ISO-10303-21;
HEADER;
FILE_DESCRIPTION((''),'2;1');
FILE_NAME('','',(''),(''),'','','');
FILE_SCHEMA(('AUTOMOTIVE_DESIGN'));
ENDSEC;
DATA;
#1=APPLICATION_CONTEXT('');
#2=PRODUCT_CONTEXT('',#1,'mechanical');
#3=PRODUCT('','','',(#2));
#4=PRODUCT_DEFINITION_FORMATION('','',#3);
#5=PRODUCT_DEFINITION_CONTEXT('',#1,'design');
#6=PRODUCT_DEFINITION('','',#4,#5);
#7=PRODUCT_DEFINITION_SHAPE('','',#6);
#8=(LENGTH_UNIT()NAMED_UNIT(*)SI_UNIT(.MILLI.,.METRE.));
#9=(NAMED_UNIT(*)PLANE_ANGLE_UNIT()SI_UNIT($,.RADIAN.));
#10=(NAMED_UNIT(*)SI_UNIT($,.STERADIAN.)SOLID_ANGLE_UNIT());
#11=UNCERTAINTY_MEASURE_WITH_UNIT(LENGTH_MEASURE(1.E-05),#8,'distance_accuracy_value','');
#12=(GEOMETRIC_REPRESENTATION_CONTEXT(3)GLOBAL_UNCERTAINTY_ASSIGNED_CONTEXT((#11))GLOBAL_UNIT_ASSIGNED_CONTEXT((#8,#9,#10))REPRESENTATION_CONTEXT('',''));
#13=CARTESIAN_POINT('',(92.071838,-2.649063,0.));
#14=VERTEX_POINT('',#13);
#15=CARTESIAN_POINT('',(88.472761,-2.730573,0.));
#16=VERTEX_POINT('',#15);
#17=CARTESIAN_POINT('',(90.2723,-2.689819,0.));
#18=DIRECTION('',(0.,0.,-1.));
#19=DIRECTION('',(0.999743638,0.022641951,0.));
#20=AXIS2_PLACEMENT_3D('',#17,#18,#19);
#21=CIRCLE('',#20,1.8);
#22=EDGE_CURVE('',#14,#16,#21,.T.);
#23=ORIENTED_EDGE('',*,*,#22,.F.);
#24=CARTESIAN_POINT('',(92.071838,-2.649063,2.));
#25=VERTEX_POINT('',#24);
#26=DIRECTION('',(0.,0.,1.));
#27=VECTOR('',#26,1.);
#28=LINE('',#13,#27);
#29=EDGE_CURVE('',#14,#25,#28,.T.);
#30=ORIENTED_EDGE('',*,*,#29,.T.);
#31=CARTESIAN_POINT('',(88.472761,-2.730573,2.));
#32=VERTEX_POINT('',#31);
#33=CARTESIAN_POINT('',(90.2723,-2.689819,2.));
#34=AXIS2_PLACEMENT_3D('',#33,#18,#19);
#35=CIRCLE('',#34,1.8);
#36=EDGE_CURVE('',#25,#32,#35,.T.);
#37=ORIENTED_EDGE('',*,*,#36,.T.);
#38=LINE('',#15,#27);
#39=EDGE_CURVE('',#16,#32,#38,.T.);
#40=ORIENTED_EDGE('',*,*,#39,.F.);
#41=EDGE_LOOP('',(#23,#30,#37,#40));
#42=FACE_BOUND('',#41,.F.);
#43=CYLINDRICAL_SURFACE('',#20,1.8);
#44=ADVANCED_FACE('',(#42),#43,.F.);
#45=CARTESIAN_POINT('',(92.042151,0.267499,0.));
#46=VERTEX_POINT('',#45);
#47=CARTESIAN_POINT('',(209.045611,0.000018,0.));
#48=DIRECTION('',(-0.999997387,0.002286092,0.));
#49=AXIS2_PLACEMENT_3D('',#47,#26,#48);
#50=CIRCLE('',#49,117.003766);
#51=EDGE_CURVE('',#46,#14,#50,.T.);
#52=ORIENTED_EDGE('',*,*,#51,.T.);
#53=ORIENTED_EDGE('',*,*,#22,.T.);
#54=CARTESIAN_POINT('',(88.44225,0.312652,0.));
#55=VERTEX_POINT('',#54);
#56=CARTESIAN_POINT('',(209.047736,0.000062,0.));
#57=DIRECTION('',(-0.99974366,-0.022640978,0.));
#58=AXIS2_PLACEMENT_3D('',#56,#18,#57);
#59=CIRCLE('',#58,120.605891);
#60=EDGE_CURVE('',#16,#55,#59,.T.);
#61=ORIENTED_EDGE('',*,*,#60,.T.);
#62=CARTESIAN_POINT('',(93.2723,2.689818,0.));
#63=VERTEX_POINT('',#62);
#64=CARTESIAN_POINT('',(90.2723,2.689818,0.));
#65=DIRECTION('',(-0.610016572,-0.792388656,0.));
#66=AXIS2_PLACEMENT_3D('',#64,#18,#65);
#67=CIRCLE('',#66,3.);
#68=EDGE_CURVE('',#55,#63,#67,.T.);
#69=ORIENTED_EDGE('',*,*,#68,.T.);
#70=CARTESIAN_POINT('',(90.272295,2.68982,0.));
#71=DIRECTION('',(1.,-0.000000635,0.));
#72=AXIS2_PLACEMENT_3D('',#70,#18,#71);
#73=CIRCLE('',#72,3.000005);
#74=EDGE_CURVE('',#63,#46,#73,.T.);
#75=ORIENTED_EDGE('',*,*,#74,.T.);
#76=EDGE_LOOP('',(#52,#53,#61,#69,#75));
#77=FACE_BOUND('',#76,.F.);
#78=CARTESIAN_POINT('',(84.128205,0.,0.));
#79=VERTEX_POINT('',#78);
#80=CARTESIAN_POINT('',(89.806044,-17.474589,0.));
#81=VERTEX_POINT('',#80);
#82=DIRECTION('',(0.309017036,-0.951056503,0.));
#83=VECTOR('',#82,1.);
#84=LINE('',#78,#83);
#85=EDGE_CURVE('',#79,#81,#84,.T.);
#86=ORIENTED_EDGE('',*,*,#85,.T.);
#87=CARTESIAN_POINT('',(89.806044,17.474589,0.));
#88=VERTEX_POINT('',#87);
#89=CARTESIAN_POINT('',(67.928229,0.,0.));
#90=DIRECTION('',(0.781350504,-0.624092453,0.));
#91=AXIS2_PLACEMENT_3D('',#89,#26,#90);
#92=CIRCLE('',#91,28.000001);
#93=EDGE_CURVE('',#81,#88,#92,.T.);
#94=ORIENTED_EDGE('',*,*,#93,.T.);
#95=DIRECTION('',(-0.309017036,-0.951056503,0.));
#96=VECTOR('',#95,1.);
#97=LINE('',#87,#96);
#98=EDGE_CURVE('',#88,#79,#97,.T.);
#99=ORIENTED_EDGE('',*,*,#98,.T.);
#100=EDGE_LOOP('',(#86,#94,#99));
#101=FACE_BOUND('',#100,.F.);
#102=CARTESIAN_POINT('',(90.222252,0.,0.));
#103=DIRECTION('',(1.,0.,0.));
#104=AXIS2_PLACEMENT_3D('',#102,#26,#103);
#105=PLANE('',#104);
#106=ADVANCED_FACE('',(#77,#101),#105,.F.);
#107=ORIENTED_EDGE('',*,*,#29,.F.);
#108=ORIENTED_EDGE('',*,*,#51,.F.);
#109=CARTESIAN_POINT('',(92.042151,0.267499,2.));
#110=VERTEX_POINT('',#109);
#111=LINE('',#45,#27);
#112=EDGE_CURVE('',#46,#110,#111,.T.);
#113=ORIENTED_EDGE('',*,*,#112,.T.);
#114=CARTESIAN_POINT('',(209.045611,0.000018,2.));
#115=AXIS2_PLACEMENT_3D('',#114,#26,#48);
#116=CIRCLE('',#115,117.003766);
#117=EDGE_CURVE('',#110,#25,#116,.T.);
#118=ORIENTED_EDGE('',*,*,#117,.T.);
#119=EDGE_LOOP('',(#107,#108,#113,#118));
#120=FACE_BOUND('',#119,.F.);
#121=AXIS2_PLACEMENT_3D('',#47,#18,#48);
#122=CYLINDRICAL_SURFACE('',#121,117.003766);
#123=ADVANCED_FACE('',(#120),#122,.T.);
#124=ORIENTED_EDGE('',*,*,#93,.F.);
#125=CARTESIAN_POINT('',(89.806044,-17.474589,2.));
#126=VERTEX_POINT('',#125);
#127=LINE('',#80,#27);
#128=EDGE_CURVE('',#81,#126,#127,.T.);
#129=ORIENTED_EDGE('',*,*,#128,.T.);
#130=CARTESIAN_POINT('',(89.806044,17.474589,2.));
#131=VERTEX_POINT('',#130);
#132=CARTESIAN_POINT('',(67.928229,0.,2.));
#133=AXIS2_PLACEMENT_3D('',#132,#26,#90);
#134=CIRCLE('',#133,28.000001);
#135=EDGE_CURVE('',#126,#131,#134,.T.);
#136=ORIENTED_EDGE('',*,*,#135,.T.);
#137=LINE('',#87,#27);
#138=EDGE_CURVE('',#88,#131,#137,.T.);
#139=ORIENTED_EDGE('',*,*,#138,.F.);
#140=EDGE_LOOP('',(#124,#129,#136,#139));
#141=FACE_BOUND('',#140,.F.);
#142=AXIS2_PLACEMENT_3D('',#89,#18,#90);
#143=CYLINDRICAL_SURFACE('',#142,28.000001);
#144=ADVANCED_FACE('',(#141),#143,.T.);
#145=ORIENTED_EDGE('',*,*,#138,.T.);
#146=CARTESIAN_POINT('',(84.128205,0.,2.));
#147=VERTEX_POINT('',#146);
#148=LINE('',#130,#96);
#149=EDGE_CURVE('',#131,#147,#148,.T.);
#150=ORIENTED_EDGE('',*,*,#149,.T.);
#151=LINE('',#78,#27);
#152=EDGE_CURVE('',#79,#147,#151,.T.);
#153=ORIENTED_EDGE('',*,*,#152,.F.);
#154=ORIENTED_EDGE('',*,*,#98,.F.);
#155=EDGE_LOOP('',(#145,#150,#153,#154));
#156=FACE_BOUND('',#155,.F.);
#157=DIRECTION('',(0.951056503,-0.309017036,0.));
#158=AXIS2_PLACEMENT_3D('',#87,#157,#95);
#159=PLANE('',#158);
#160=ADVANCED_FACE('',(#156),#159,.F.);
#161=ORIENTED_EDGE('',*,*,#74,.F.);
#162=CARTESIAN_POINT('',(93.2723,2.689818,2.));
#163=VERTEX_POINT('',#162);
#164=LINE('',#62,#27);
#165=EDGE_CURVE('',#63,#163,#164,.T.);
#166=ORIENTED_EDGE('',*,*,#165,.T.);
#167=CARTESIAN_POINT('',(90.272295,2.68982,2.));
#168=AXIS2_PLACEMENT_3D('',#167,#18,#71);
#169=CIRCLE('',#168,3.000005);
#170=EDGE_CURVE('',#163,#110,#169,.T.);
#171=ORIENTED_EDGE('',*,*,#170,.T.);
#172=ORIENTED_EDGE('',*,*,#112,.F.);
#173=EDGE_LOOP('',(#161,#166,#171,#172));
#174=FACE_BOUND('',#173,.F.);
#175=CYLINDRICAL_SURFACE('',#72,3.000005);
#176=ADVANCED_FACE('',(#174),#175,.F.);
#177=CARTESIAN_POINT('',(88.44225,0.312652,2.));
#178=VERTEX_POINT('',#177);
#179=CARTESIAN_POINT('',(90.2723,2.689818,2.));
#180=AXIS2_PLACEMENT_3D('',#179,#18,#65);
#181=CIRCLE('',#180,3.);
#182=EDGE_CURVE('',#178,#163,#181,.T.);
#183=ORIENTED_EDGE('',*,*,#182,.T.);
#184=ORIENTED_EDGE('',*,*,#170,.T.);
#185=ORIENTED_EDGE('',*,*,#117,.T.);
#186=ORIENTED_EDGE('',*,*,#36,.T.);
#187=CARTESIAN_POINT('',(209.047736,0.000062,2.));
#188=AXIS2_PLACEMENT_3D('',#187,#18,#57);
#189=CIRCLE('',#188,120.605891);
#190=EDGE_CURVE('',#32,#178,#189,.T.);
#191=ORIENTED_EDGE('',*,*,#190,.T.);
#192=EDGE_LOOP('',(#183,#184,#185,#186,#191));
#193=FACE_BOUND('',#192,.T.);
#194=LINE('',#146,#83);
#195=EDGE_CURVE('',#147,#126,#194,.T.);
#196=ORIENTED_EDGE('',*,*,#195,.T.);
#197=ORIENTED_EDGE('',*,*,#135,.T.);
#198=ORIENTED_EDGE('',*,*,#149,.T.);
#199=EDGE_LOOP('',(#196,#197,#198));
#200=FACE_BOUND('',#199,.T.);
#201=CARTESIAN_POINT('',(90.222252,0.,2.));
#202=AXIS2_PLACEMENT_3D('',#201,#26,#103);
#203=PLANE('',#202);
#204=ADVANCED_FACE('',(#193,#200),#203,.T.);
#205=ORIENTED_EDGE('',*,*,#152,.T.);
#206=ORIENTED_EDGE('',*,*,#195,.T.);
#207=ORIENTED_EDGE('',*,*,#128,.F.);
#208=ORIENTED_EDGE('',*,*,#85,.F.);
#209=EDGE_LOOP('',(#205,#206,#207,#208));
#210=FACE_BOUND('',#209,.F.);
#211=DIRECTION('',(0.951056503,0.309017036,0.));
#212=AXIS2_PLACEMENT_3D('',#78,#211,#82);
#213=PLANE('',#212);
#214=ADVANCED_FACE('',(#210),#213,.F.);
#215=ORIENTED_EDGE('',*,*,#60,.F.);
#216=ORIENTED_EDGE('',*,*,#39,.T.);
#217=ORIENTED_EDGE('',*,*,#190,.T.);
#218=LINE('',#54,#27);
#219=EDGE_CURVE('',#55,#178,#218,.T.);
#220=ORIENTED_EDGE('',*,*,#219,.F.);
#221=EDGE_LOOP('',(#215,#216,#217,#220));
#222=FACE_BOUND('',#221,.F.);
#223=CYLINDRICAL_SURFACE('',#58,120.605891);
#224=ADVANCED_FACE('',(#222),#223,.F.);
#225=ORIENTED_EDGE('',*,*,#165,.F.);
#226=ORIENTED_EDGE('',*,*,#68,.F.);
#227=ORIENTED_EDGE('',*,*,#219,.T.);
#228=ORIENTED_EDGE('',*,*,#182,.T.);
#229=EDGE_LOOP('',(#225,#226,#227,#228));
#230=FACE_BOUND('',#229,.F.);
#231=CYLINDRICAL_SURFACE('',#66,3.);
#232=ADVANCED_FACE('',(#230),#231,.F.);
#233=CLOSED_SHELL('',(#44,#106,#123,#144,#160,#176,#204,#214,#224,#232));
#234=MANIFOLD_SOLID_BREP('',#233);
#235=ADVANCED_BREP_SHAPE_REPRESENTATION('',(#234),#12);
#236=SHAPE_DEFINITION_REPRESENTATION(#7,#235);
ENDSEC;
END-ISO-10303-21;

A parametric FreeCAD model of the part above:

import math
import FreeCAD as App
import Part
import Sketcher

V = App.Vector
Q = App.Units.Quantity

doc = App.newDocument("Part")
body = doc.addObject("PartDesign::Body", "Body")

# Sketch on XY plane
sketch1 = doc.addObject("Sketcher::SketchObject", "Sketch")
body.addObject(sketch1)
sketch1.AttachmentSupport = (doc.XY_Plane, [""])
sketch1.MapMode = "FlatFace"
sketch1.addGeometry([
    Part.ArcOfCircle(Part.Circle(V(67.9, 0, 0), V(0, 0, 1), 28), math.radians(-39), math.radians(39)),  # 0
    Part.LineSegment(V(89.8, 17.5, 0), V(84.1, 0, 0)),  # 1
    Part.LineSegment(V(84.1, 0, 0), V(89.8, -17.5, 0)),  # 2
    Part.ArcOfCircle(Part.Circle(V(209, 0, 0), V(0, 0, 1), 120.6), math.radians(179.85), math.radians(181.3)),  # 3
    Part.ArcOfCircle(Part.Circle(V(90.3, 2.7, 0), V(0, 0, 1), 3), math.radians(0), math.radians(232)),  # 4
    Part.ArcOfCircle(Part.Circle(V(90.3, 2.7, 0), V(0, 0, 1), 3), math.radians(-54), math.radians(0)),  # 5
    Part.ArcOfCircle(Part.Circle(V(209, 0, 0), V(0, 0, 1), 117), math.radians(179.87), math.radians(181.3)),  # 6
    Part.ArcOfCircle(Part.Circle(V(90.3, -2.7, 0), V(0, 0, 1), 1.8), math.radians(-179), math.radians(1)),  # 7
], False)
sketch1.addConstraint([
    Sketcher.Constraint("Coincident", 0, 2, 1, 1),
    Sketcher.Constraint("Coincident", 1, 2, 2, 1),
    Sketcher.Constraint("Coincident", 2, 2, 0, 1),
    Sketcher.Constraint("Coincident", 3, 1, 4, 2),
    Sketcher.Constraint("Tangent", 4, 1, 5, 2),
    Sketcher.Constraint("Coincident", 5, 1, 6, 1),
    Sketcher.Constraint("Tangent", 6, 2, 7, 2),
    Sketcher.Constraint("Tangent", 7, 1, 3, 2),
    Sketcher.Constraint("Symmetric", 4, 3, 7, 3, -1),
    Sketcher.Constraint("Symmetric", 0, 2, 2, 2, -1),
    Sketcher.Constraint("PointOnObject", 1, 2, -1),
    Sketcher.Constraint("Horizontal", 5, 3, 4, 1),
    Sketcher.Constraint("Radius", 0, 28.000001),
    Sketcher.Constraint("Radius", 4, 3.0),
    Sketcher.Constraint("Radius", 7, 1.8),
    Sketcher.Constraint("Angle", 1, Q("-108.000003 deg")),
    Sketcher.Constraint("Radius", 3, 120.605891),
    Sketcher.Constraint("Radius", 5, 3.000005),
    Sketcher.Constraint("Radius", 6, 117.003766),
    Sketcher.Constraint("DistanceX", -1, 1, 4, 3, 90.2723),
    Sketcher.Constraint("DistanceY", -1, 1, 5, 1, 0.267499),
    Sketcher.Constraint("DistanceY", 6, 3, 4, 3, 2.6898),
    Sketcher.Constraint("DistanceX", 3, 1, 5, 1, 3.599901),
    Sketcher.Constraint("Distance", 1, 18.37387),
    Sketcher.Constraint("DistanceX", -1, 1, 0, 3, 67.928229),
])
pad1 = doc.addObject("PartDesign::Pad", "Pad")
body.addObject(pad1)
pad1.Profile = sketch1
pad1.Length = 2

doc.recompute()
